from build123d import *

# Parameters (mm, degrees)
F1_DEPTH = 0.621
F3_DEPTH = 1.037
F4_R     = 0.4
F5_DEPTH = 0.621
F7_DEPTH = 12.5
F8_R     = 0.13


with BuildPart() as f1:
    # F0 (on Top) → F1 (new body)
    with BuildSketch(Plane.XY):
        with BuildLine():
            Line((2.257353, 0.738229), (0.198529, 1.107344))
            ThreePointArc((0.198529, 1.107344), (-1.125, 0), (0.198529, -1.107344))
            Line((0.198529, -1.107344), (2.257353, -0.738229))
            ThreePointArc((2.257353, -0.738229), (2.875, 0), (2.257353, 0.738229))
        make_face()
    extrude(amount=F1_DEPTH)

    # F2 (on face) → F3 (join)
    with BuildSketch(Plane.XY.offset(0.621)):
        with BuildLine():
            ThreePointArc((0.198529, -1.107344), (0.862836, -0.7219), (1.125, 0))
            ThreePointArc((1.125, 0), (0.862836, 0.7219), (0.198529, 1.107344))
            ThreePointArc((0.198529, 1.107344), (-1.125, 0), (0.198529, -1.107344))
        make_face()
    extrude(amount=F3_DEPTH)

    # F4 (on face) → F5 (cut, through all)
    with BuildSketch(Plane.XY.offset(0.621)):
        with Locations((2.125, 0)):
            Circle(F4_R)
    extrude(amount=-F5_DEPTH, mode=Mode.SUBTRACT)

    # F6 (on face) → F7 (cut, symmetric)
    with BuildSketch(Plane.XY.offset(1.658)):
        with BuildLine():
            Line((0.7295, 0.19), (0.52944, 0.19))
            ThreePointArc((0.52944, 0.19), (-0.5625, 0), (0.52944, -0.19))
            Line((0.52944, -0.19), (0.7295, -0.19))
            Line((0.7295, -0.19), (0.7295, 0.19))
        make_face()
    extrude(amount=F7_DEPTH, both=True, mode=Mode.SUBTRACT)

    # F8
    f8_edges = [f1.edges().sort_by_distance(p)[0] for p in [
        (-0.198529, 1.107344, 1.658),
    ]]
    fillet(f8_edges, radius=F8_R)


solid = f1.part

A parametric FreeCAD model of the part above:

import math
import FreeCAD as App
import Part
import Sketcher
Q = App.Units.Quantity


def edges_at(feature, points):
    """Names of the edges that pass closest to the given points."""
    edges = feature.Shape.Edges
    near = lambda p: min(range(len(edges)), key=lambda i: edges[i].distToShape(Part.Vertex(*p))[0])
    return sorted({f"Edge{near(p) + 1}" for p in points})

doc = App.newDocument("Part")
body = doc.addObject("PartDesign::Body", "Body")

# Sketch on XY plane
sketch1 = body.newObject("Sketcher::SketchObject", "Sketch")
sketch1.AttachmentSupport = (doc.getObject("XY_Plane"), [""])
sketch1.MapMode = "FlatFace"
sketch1.addGeometry([
    Part.LineSegment(App.Vector(2.257353, 0.738229, 0), App.Vector(0.198529, 1.107344, 0)),
    Part.ArcOfCircle(Part.Circle(App.Vector(0, 0, 0), App.Vector(0, 0, 1), 1.125), math.radians(79.835761), math.radians(280.164239)),
    Part.LineSegment(App.Vector(0.198529, -1.107344, 0), App.Vector(2.257353, -0.738229, 0)),
    Part.ArcOfCircle(Part.Circle(App.Vector(2.125001, 0, 0), App.Vector(0, 0, 1), 0.749999), math.radians(-79.835779), math.radians(79.835779)),
], False)
sketch1.addConstraint([
    Sketcher.Constraint("Tangent", 0, 2, 1, 1),
    Sketcher.Constraint("Tangent", 1, 2, 2, 1),
    Sketcher.Constraint("Tangent", 2, 2, 3, 1),
    Sketcher.Constraint("Tangent", 3, 2, 0, 1),
    Sketcher.Constraint("Coincident", 1, 3, -1, 1),
    Sketcher.Constraint("PointOnObject", 3, 3, -1),
    Sketcher.Constraint("Radius", 3, Q("0.749999 mm")),
    Sketcher.Constraint("Radius", 1, Q("1.125 mm")),
    Sketcher.Constraint("DistanceX", -1, 1, 3, 3, Q("2.125001 mm")),
])
pad1 = body.newObject("PartDesign::Pad", "Pad")
pad1.Profile = sketch1
pad1.Length = 0.621

# Sketch on XY plane
sketch2 = body.newObject("Sketcher::SketchObject", "Sketch001")
sketch2.AttachmentSupport = (doc.getObject("XY_Plane"), [""])
sketch2.MapMode = "FlatFace"
sketch2.AttachmentOffset = App.Placement(App.Vector(0, 0, 0.621), App.Rotation())
sketch2.addGeometry([
    Part.ArcOfCircle(Part.Circle(App.Vector(0.000001, -0.000001, 0), App.Vector(0, 0, 1), 1.124999), math.radians(-79.835829), math.radians(0.000045)),
    Part.ArcOfCircle(Part.Circle(App.Vector(0.000001, 0.000001, 0), App.Vector(0, 0, 1), 1.124999), math.radians(-0.000045), math.radians(79.835829)),
    Part.ArcOfCircle(Part.Circle(App.Vector(0, 0, 0), App.Vector(0, 0, 1), 1.125), math.radians(79.835761), math.radians(280.164239)),
], False)
sketch2.addConstraint([
    Sketcher.Constraint("Tangent", 0, 2, 1, 1),
    Sketcher.Constraint("Tangent", 1, 2, 2, 1),
    Sketcher.Constraint("Tangent", 2, 2, 0, 1),
    Sketcher.Constraint("Coincident", 0, 3, -1, 1),
    Sketcher.Constraint("PointOnObject", 0, 2, -1),
    Sketcher.Constraint("Vertical", 1, 2, 2, 2),
    Sketcher.Constraint("Radius", 0, Q("1.124999 mm")),
    Sketcher.Constraint("DistanceX", -1, 1, 1, 2, Q("0.198529 mm")),
])
pad2 = body.newObject("PartDesign::Pad", "Pad001")
pad2.Profile = sketch2
pad2.Length = 1.037

# Sketch on XY plane
sketch3 = body.newObject("Sketcher::SketchObject", "Sketch002")
sketch3.AttachmentSupport = (doc.getObject("XY_Plane"), [""])
sketch3.MapMode = "FlatFace"
sketch3.AttachmentOffset = App.Placement(App.Vector(0, 0, 0.621), App.Rotation())
sketch3.addGeometry(Part.Circle(App.Vector(2.125, 0, 0), App.Vector(0, 0, 1), 0.4), False)
sketch3.addConstraint([
    Sketcher.Constraint("PointOnObject", 0, 3, -1),
    Sketcher.Constraint("Diameter", 0, Q("0.8 mm")),
    Sketcher.Constraint("DistanceX", -1, 1, 0, 3, Q("2.125 mm")),
])
pocket1 = body.newObject("PartDesign::Pocket", "Pocket")
pocket1.Profile = sketch3
pocket1.Type = "ThroughAll"

# Sketch on XY plane
sketch4 = body.newObject("Sketcher::SketchObject", "Sketch003")
sketch4.AttachmentSupport = (doc.getObject("XY_Plane"), [""])
sketch4.MapMode = "FlatFace"
sketch4.AttachmentOffset = App.Placement(App.Vector(0, 0, 1.658), App.Rotation())
sketch4.addGeometry([
    Part.LineSegment(App.Vector(0.7295, 0.19, 0), App.Vector(0.52944, 0.19, 0)),
    Part.ArcOfCircle(Part.Circle(App.Vector(0, 0, 0), App.Vector(0, 0, 1), 0.5625), math.radians(19.741534), math.radians(340.258466)),
    Part.LineSegment(App.Vector(0.52944, -0.19, 0), App.Vector(0.7295, -0.19, 0)),
    Part.LineSegment(App.Vector(0.7295, -0.19, 0), App.Vector(0.7295, 0.19, 0)),
], False)
sketch4.addConstraint([
    Sketcher.Constraint("Coincident", 0, 2, 1, 1),
    Sketcher.Constraint("Coincident", 1, 2, 2, 1),
    Sketcher.Constraint("Coincident", 2, 2, 3, 1),
    Sketcher.Constraint("Coincident", 3, 2, 0, 1),
    Sketcher.Constraint("Horizontal", 0),
    Sketcher.Constraint("Horizontal", 2),
    Sketcher.Constraint("Vertical", 3),
    Sketcher.Constraint("Coincident", 1, 3, -1, 1),
    Sketcher.Constraint("Vertical", 0, 2, 1, 2),
    Sketcher.Constraint("DistanceY", 3, 1, 3, 2, Q("0.38 mm")),
    Sketcher.Constraint("Radius", 1, Q("0.5625 mm")),
    Sketcher.Constraint("DistanceX", 0, 2, 0, 1, Q("0.20006 mm")),
])
pocket2 = body.newObject("PartDesign::Pocket", "Pocket001")
pocket2.Profile = sketch4
pocket2.Length = 25
pocket2.Midplane = True
doc.recompute()

fillet = body.newObject("PartDesign::Fillet", "Fillet")
fillet.Base = (pocket2, edges_at(pocket2, [(-1.125, 0, 1.658)]))
fillet.Radius = 0.13

doc.recompute()
